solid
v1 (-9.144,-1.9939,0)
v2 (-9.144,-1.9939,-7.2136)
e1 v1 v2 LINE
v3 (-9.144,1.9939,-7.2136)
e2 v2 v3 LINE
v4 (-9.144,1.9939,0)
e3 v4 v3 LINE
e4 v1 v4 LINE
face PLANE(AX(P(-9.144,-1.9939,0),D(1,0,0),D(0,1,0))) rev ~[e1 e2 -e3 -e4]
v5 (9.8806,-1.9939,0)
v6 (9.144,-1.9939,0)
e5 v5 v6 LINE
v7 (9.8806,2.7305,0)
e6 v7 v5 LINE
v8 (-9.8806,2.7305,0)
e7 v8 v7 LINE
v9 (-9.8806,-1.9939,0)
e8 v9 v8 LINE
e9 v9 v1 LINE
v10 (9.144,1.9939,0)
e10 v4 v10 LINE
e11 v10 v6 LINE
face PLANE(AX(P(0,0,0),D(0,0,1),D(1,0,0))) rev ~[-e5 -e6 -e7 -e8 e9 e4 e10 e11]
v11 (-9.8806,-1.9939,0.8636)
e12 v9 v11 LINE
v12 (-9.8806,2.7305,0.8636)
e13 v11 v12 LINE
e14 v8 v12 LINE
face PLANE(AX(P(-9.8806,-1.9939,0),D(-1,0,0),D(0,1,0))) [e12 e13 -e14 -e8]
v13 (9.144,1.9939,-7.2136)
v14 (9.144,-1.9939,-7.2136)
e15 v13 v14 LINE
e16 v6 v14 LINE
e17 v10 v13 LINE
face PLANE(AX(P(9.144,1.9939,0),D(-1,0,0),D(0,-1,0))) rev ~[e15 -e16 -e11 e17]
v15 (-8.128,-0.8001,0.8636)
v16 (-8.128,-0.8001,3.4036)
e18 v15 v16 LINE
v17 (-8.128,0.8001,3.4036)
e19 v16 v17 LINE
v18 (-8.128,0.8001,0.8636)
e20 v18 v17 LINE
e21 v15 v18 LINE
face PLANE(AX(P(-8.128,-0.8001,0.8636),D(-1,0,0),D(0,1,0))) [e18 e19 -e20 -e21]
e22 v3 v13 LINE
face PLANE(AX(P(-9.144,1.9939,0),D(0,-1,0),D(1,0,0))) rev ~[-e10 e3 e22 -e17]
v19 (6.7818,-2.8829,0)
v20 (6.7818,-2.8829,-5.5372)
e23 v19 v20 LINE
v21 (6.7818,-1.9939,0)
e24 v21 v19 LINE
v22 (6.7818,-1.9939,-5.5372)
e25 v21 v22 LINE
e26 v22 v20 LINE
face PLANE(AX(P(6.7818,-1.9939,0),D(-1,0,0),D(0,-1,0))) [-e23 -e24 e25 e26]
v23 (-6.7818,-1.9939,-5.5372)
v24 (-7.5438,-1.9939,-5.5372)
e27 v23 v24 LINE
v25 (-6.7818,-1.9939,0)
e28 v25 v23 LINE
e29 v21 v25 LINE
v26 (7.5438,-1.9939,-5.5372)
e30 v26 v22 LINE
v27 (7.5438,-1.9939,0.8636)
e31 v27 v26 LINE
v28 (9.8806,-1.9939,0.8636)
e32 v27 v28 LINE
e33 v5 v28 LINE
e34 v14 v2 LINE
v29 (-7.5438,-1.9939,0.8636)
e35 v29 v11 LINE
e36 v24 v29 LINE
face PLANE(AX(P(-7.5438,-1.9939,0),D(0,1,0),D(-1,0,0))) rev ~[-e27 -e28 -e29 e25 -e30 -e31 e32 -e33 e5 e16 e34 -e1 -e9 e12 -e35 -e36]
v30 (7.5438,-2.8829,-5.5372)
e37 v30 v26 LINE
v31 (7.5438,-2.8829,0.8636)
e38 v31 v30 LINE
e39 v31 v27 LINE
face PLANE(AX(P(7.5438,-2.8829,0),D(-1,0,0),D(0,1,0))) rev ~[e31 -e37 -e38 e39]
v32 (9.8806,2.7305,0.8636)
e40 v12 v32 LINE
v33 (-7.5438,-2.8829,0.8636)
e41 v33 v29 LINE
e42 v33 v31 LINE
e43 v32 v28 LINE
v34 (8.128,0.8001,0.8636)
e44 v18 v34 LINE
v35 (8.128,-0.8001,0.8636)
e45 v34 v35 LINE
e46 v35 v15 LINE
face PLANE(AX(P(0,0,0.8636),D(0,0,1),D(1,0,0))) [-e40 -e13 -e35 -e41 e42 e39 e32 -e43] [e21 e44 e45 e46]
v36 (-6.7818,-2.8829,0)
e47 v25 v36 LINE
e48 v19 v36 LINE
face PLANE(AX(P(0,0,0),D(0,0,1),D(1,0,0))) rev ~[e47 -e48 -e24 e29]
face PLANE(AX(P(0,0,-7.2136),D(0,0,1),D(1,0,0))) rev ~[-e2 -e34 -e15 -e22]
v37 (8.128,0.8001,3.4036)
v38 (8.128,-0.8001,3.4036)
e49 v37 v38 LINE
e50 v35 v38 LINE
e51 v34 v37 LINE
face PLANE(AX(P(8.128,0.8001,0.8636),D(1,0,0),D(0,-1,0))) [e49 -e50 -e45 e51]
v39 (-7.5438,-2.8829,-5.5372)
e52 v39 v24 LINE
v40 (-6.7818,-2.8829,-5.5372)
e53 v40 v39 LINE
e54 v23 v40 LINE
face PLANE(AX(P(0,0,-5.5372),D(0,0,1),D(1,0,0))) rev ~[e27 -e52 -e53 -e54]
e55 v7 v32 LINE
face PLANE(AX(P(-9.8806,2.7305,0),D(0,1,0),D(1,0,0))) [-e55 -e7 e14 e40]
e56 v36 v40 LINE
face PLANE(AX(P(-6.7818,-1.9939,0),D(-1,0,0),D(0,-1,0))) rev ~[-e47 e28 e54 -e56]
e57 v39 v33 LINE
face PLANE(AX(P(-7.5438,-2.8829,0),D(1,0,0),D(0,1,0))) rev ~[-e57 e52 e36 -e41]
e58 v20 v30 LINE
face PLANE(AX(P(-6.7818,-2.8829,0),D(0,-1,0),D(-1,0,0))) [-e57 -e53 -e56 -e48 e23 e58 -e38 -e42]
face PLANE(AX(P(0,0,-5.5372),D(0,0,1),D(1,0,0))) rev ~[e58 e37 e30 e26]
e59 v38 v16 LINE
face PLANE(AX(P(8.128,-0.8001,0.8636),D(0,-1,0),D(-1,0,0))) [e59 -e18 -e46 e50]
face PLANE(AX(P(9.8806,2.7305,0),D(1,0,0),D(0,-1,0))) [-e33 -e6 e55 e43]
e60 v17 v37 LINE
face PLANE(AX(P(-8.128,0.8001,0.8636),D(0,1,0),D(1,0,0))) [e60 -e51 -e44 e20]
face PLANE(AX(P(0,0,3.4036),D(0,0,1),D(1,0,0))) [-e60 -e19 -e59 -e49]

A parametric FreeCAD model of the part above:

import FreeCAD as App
import Part
import Sketcher
Q = App.Units.Quantity

doc = App.newDocument("Part")
body = doc.addObject("PartDesign::Body", "Body")

# Sketch on XY plane
sketch1 = doc.addObject("Sketcher::SketchObject", "Sketch")
body.addObject(sketch1)
sketch1.AttachmentSupport = (doc.XY_Plane, [""])
sketch1.MapMode = "FlatFace"
sketch1.addGeometry(Part.LineSegment(App.Vector(9.144, 1.9939, 0), App.Vector(-9.144, 1.9939, 0)), False)
sketch1.addGeometry(Part.LineSegment(App.Vector(-9.144, 1.9939, 0), App.Vector(-9.144, -1.9939, 0)), False)
sketch1.addGeometry(Part.LineSegment(App.Vector(-9.144, -1.9939, 0), App.Vector(9.144, -1.9939, 0)), False)
sketch1.addGeometry(Part.LineSegment(App.Vector(9.144, -1.9939, 0), App.Vector(9.144, 1.9939, 0)), False)
sketch1.addConstraint(Sketcher.Constraint("Coincident", 0, 2, 1, 1))
sketch1.addConstraint(Sketcher.Constraint("Coincident", 1, 2, 2, 1))
sketch1.addConstraint(Sketcher.Constraint("Coincident", 2, 2, 3, 1))
sketch1.addConstraint(Sketcher.Constraint("Coincident", 3, 2, 0, 1))
sketch1.addConstraint(Sketcher.Constraint("Horizontal", 0))
sketch1.addConstraint(Sketcher.Constraint("Vertical", 1))
sketch1.addConstraint(Sketcher.Constraint("Horizontal", 2))
sketch1.addConstraint(Sketcher.Constraint("Vertical", 3))
sketch1.addConstraint(Sketcher.Constraint("Symmetric", 0, 2, 2, 2, -1, 1))
sketch1.addConstraint(Sketcher.Constraint("DistanceX", 0, 2, 0, 1, Q("0.72 in")))
sketch1.addConstraint(Sketcher.Constraint("DistanceY", 1, 2, 1, 1, Q("0.157 in")))
pad1 = doc.addObject("PartDesign::Pad", "Pad")
body.addObject(pad1)
pad1.Profile = sketch1
pad1.Length = Q("0.284 in")
pad1.Reversed = True

# Sketch on XY plane
sketch2 = doc.addObject("Sketcher::SketchObject", "Sketch001")
body.addObject(sketch2)
sketch2.AttachmentSupport = (doc.XY_Plane, [""])
sketch2.MapMode = "FlatFace"
sketch2.addGeometry(Part.LineSegment(App.Vector(-9.8806, -1.9939, 0), App.Vector(-7.5438, -1.9939, 0)), False)
sketch2.addGeometry(Part.LineSegment(App.Vector(-7.5438, -1.9939, 0), App.Vector(-7.5438, -2.8829, 0)), False)
sketch2.addGeometry(Part.LineSegment(App.Vector(-7.5438, -2.8829, 0), App.Vector(7.5438, -2.8829, 0)), False)
sketch2.addGeometry(Part.LineSegment(App.Vector(7.5438, -2.8829, 0), App.Vector(7.5438, -1.9939, 0)), False)
sketch2.addGeometry(Part.LineSegment(App.Vector(7.5438, -1.9939, 0), App.Vector(9.8806, -1.9939, 0)), False)
sketch2.addGeometry(Part.LineSegment(App.Vector(9.8806, -1.9939, 0), App.Vector(9.8806, 2.7305, 0)), False)
sketch2.addGeometry(Part.LineSegment(App.Vector(9.8806, 2.7305, 0), App.Vector(-9.8806, 2.7305, 0)), False)
sketch2.addGeometry(Part.LineSegment(App.Vector(-9.8806, 2.7305, 0), App.Vector(-9.8806, -1.9939, 0)), False)
sketch2.addConstraint(Sketcher.Constraint("Coincident", 0, 2, 1, 1))
sketch2.addConstraint(Sketcher.Constraint("Coincident", 1, 2, 2, 1))
sketch2.addConstraint(Sketcher.Constraint("Coincident", 2, 2, 3, 1))
sketch2.addConstraint(Sketcher.Constraint("Coincident", 3, 2, 4, 1))
sketch2.addConstraint(Sketcher.Constraint("Coincident", 4, 2, 5, 1))
sketch2.addConstraint(Sketcher.Constraint("Coincident", 5, 2, 6, 1))
sketch2.addConstraint(Sketcher.Constraint("Coincident", 6, 2, 7, 1))
sketch2.addConstraint(Sketcher.Constraint("Coincident", 7, 2, 0, 1))
sketch2.addConstraint(Sketcher.Constraint("Horizontal", 0))
sketch2.addConstraint(Sketcher.Constraint("Vertical", 1))
sketch2.addConstraint(Sketcher.Constraint("Horizontal", 2))
sketch2.addConstraint(Sketcher.Constraint("Vertical", 3))
sketch2.addConstraint(Sketcher.Constraint("Horizontal", 4))
sketch2.addConstraint(Sketcher.Constraint("Vertical", 5))
sketch2.addConstraint(Sketcher.Constraint("Horizontal", 6))
sketch2.addConstraint(Sketcher.Constraint("Vertical", 7))
sketch2.addConstraint(Sketcher.Constraint("Symmetric", 0, 2, 3, 2, -2))
sketch2.addConstraint(Sketcher.Constraint("Equal", 0, 4))
sketch2.addConstraint(Sketcher.Constraint("DistanceY", 1, 2, 1, 1, Q("0.035 in")))
sketch2.addConstraint(Sketcher.Constraint("DistanceX", 0, 1, 0, 2, Q("0.092 in")))
sketch2.addConstraint(Sketcher.Constraint("DistanceX", 2, 1, 2, 2, Q("0.594 in")))
sketch2.addConstraint(Sketcher.Constraint("DistanceY", 5, 1, 5, 2, Q("0.186 in")))
sketch2.addConstraint(Sketcher.Constraint("DistanceY", 0, 2, -1, 1, Q("0.0785 in")))
pad2 = doc.addObject("PartDesign::Pad", "Pad001")
body.addObject(pad2)
pad2.Profile = sketch2
pad2.Length = Q("0.034 in")

# Sketch on XY plane
sketch3 = doc.addObject("Sketcher::SketchObject", "Sketch002")
body.addObject(sketch3)
sketch3.AttachmentSupport = (doc.XY_Plane, [""])
sketch3.MapMode = "FlatFace"
sketch3.AttachmentOffset = App.Placement(App.Vector(0, 0, 0.034 * 25.4), App.Rotation())
sketch3.addGeometry(Part.LineSegment(App.Vector(8.128, 0.8001, 0), App.Vector(-8.128, 0.8001, 0)), False)
sketch3.addGeometry(Part.LineSegment(App.Vector(-8.128, 0.8001, 0), App.Vector(-8.128, -0.8001, 0)), False)
sketch3.addGeometry(Part.LineSegment(App.Vector(-8.128, -0.8001, 0), App.Vector(8.128, -0.8001, 0)), False)
sketch3.addGeometry(Part.LineSegment(App.Vector(8.128, -0.8001, 0), App.Vector(8.128, 0.8001, 0)), False)
sketch3.addConstraint(Sketcher.Constraint("Coincident", 0, 2, 1, 1))
sketch3.addConstraint(Sketcher.Constraint("Coincident", 1, 2, 2, 1))
sketch3.addConstraint(Sketcher.Constraint("Coincident", 2, 2, 3, 1))
sketch3.addConstraint(Sketcher.Constraint("Coincident", 3, 2, 0, 1))
sketch3.addConstraint(Sketcher.Constraint("Horizontal", 0))
sketch3.addConstraint(Sketcher.Constraint("Vertical", 1))
sketch3.addConstraint(Sketcher.Constraint("Horizontal", 2))
sketch3.addConstraint(Sketcher.Constraint("Vertical", 3))
sketch3.addConstraint(Sketcher.Constraint("Symmetric", 0, 2, 2, 2, -1, 1))
sketch3.addConstraint(Sketcher.Constraint("DistanceX", 0, 2, 0, 1, Q("0.64 in")))
sketch3.addConstraint(Sketcher.Constraint("DistanceY", 1, 2, 1, 1, Q("0.063 in")))
pad3 = doc.addObject("PartDesign::Pad", "Pad002")
body.addObject(pad3)
pad3.Profile = sketch3
pad3.Length = Q("0.1 in")

# Sketch on XY plane
sketch4 = doc.addObject("Sketcher::SketchObject", "Sketch003")
body.addObject(sketch4)
sketch4.AttachmentSupport = (doc.XY_Plane, [""])
sketch4.MapMode = "FlatFace"
sketch4.addGeometry(Part.LineSegment(App.Vector(-6.7818, -1.9939, 0), App.Vector(-7.5438, -1.9939, 0)), False)
sketch4.addGeometry(Part.LineSegment(App.Vector(-7.5438, -1.9939, 0), App.Vector(-7.5438, -2.8829, 0)), False)
sketch4.addGeometry(Part.LineSegment(App.Vector(-7.5438, -2.8829, 0), App.Vector(-6.7818, -2.8829, 0)), False)
sketch4.addGeometry(Part.LineSegment(App.Vector(-6.7818, -2.8829, 0), App.Vector(-6.7818, -1.9939, 0)), False)
sketch4.addGeometry(Part.LineSegment(App.Vector(7.5438, -2.8829, 0), App.Vector(7.5438, -1.9939, 0)), False)
sketch4.addGeometry(Part.LineSegment(App.Vector(7.5438, -1.9939, 0), App.Vector(6.7818, -1.9939, 0)), False)
sketch4.addGeometry(Part.LineSegment(App.Vector(6.7818, -1.9939, 0), App.Vector(6.7818, -2.8829, 0)), False)
sketch4.addGeometry(Part.LineSegment(App.Vector(6.7818, -2.8829, 0), App.Vector(7.5438, -2.8829, 0)), False)
sketch4.addConstraint(Sketcher.Constraint("Coincident", 0, 2, 1, 1))
sketch4.addConstraint(Sketcher.Constraint("Coincident", 1, 2, 2, 1))
sketch4.addConstraint(Sketcher.Constraint("Coincident", 2, 2, 3, 1))
sketch4.addConstraint(Sketcher.Constraint("Coincident", 3, 2, 0, 1))
sketch4.addConstraint(Sketcher.Constraint("Coincident", 4, 2, 5, 1))
sketch4.addConstraint(Sketcher.Constraint("Coincident", 5, 2, 6, 1))
sketch4.addConstraint(Sketcher.Constraint("Coincident", 6, 2, 7, 1))
sketch4.addConstraint(Sketcher.Constraint("Coincident", 7, 2, 4, 1))
sketch4.addConstraint(Sketcher.Constraint("Horizontal", 0))
sketch4.addConstraint(Sketcher.Constraint("Vertical", 1))
sketch4.addConstraint(Sketcher.Constraint("Horizontal", 2))
sketch4.addConstraint(Sketcher.Constraint("Vertical", 3))
sketch4.addConstraint(Sketcher.Constraint("Vertical", 4))
sketch4.addConstraint(Sketcher.Constraint("Horizontal", 5))
sketch4.addConstraint(Sketcher.Constraint("Vertical", 6))
sketch4.addConstraint(Sketcher.Constraint("Horizontal", 7))
sketch4.addConstraint(Sketcher.Constraint("Symmetric", 0, 2, 4, 2, -2))
sketch4.addConstraint(Sketcher.Constraint("Symmetric", 2, 2, 6, 2, -2))
sketch4.addConstraint(Sketcher.Constraint("DistanceX", 0, 2, 0, 1, Q("0.03 in")))
sketch4.addConstraint(Sketcher.Constraint("DistanceY", 1, 2, 1, 1, Q("0.035 in")))
sketch4.addConstraint(Sketcher.Constraint("DistanceX", 3, 2, 5, 2, Q("0.534 in")))
sketch4.addConstraint(Sketcher.Constraint("DistanceY", 0, 2, -1, 1, Q("0.0785 in")))
pad4 = doc.addObject("PartDesign::Pad", "Pad003")
body.addObject(pad4)
pad4.Profile = sketch4
pad4.Length = Q("0.218 in")
pad4.Reversed = True

doc.recompute()
